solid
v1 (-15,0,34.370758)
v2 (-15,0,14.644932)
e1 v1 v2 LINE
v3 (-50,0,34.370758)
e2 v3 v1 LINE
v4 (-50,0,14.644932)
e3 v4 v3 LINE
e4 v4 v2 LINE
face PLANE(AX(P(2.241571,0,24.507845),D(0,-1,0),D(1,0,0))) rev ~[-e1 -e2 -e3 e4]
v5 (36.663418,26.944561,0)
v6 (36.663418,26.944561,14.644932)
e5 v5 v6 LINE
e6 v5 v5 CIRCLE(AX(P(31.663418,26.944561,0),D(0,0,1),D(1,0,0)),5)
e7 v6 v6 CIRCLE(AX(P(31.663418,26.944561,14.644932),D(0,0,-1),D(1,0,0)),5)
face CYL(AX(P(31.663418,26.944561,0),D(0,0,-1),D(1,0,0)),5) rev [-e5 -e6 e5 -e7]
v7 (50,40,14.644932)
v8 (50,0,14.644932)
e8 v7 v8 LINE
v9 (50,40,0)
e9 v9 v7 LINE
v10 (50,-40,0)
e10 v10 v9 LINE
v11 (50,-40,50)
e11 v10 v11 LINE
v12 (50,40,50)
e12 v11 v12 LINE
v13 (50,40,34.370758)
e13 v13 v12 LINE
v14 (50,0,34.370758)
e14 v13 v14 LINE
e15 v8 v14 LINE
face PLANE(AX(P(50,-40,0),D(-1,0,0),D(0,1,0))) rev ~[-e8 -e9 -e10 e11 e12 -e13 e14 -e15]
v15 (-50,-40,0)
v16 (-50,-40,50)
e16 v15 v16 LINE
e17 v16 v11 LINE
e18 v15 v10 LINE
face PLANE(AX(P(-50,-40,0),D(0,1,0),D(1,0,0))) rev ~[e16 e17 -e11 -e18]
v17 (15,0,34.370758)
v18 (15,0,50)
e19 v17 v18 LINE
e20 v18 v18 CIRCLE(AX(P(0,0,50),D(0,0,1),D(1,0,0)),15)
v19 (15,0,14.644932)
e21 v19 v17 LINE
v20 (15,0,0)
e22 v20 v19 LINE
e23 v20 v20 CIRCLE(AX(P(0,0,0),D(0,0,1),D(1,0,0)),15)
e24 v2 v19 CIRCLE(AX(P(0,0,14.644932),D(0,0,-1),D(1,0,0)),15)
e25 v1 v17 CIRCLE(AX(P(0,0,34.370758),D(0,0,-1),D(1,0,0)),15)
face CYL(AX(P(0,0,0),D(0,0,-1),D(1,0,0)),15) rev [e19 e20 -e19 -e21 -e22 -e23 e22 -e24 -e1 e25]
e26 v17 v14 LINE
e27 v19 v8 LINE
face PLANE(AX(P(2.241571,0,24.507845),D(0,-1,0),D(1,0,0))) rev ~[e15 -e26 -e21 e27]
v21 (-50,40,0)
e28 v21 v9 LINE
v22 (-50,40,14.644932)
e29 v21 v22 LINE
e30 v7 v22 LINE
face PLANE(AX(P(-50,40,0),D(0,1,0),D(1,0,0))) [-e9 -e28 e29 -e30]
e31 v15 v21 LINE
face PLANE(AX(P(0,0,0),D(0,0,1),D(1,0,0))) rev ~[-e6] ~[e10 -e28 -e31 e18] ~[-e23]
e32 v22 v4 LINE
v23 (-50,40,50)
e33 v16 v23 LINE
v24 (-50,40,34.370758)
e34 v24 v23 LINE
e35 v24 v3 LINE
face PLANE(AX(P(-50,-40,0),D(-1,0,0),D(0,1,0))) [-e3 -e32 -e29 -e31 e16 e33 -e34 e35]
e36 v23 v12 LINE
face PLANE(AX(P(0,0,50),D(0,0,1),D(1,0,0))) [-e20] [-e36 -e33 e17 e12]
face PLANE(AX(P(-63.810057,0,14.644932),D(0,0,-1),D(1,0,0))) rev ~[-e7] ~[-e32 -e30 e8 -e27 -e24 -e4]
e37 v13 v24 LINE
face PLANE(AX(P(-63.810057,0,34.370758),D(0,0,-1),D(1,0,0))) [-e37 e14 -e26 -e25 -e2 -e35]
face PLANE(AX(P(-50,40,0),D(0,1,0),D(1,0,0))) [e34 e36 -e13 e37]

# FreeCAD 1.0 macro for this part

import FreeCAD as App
import Part
import Sketcher

V = App.Vector
Q = App.Units.Quantity


def add_polygon(sketch, points):
    """Adds a closed chain of lines whose ends are joined by coincident constraints."""
    first, n = sketch.GeometryCount, len(points)
    for a, b in zip(points, points[1:] + points[:1]):
        sketch.addGeometry(Part.LineSegment(App.Vector(*a, 0), App.Vector(*b, 0)), False)
    for i in range(n):
        sketch.addConstraint(Sketcher.Constraint("Coincident", first + i, 2, first + (i + 1) % n, 1))

doc = App.newDocument("Part")
params = doc.addObject("Spreadsheet::Sheet", "Params")
for row, (alias, value) in enumerate([
    ("sketch1_diameter", "30 mm"),
    ("sketch1_width", "100 mm"),
    ("sketch1_height", "80 mm"),
    ("pad1_length", "50 mm"),
    ("pocket1_length", "50 mm"),
    ("sketch3_diameter", "10 mm"),
    ("pocket2_length", "25 mm"),
], start=1):
    params.set(f"A{row}", alias)
    params.set(f"B{row}", "=" + value)
    params.setAlias(f"B{row}", alias)

body = doc.addObject("PartDesign::Body", "Body")

# Sketch on XY plane
sketch1 = body.newObject("Sketcher::SketchObject", "Sketch")
sketch1.AttachmentSupport = (doc.getObject("XY_Plane"), [""])
sketch1.MapMode = "FlatFace"
add_polygon(sketch1, [(-50, 40), (-50, -40), (50, -40), (50, 40)])  # lines 0-3
sketch1.addGeometry(Part.Circle(V(0, 0, 0), V(0, 0, 1), 15), False)  # 4
sketch1.addConstraint([
    Sketcher.Constraint("Vertical", 0),
    Sketcher.Constraint("Horizontal", 1),
    Sketcher.Constraint("Vertical", 2),
    Sketcher.Constraint("Horizontal", 3),
    Sketcher.Constraint("Coincident", 4, 3, -1, 1),
    Sketcher.Constraint("Symmetric", 0, 2, 2, 2, -1, 1),
    Sketcher.Constraint("Diameter", 4, Q("30 mm")),
    Sketcher.Constraint("DistanceX", 1, 1, 1, 2, Q("100 mm")),
    Sketcher.Constraint("DistanceY", 0, 2, 0, 1, Q("80 mm")),
])
sketch1.setExpression("Constraints[10]", "Params.sketch1_diameter")
sketch1.setExpression("Constraints[11]", "Params.sketch1_width")
sketch1.setExpression("Constraints[12]", "Params.sketch1_height")
pad1 = body.newObject("PartDesign::Pad", "Pad")
pad1.Profile = sketch1
pad1.setExpression("Length", "Params.pad1_length")

# Sketch on XZ plane
sketch2 = body.newObject("Sketcher::SketchObject", "Sketch001")
sketch2.AttachmentSupport = (doc.getObject("XZ_Plane"), [""])
sketch2.MapMode = "FlatFace"
add_polygon(sketch2, [(-64, 34), (-64, 15), (68, 15), (68, 34)])  # lines 0-3
sketch2.addConstraint([
    Sketcher.Constraint("Vertical", 0),
    Sketcher.Constraint("Horizontal", 1),
    Sketcher.Constraint("Vertical", 2),
    Sketcher.Constraint("Horizontal", 3),
    Sketcher.Constraint("DistanceX", -1, 1, 1, 2, Q("68.2932 mm")),
    Sketcher.Constraint("DistanceX", 1, 1, 1, 2, Q("132.103257 mm")),
    Sketcher.Constraint("DistanceY", 0, 2, 0, 1, Q("19.725826 mm")),
    Sketcher.Constraint("DistanceY", -1, 1, 2, 2, Q("34.370758 mm")),
])
pocket1 = body.newObject("PartDesign::Pocket", "Pocket")
pocket1.Profile = sketch2
pocket1.setExpression("Length", "Params.pocket1_length")

# Sketch on XY plane
sketch3 = body.newObject("Sketcher::SketchObject", "Sketch002")
sketch3.AttachmentSupport = (doc.getObject("XY_Plane"), [""])
sketch3.MapMode = "FlatFace"
sketch3.addGeometry(Part.Circle(V(32, 27, 0), V(0, 0, 1), 5), False)
sketch3.addConstraint([
    Sketcher.Constraint("Diameter", 0, Q("10 mm")),
    Sketcher.Constraint("DistanceX", -1, 1, 0, 3, Q("31.663418 mm")),
    Sketcher.Constraint("DistanceY", -1, 1, 0, 3, Q("26.944561 mm")),
])
sketch3.setExpression("Constraints[0]", "Params.sketch3_diameter")
pocket2 = body.newObject("PartDesign::Pocket", "Pocket001")
pocket2.Profile = sketch3
pocket2.setExpression("Length", "Params.pocket2_length")
pocket2.Reversed = True

doc.recompute()
